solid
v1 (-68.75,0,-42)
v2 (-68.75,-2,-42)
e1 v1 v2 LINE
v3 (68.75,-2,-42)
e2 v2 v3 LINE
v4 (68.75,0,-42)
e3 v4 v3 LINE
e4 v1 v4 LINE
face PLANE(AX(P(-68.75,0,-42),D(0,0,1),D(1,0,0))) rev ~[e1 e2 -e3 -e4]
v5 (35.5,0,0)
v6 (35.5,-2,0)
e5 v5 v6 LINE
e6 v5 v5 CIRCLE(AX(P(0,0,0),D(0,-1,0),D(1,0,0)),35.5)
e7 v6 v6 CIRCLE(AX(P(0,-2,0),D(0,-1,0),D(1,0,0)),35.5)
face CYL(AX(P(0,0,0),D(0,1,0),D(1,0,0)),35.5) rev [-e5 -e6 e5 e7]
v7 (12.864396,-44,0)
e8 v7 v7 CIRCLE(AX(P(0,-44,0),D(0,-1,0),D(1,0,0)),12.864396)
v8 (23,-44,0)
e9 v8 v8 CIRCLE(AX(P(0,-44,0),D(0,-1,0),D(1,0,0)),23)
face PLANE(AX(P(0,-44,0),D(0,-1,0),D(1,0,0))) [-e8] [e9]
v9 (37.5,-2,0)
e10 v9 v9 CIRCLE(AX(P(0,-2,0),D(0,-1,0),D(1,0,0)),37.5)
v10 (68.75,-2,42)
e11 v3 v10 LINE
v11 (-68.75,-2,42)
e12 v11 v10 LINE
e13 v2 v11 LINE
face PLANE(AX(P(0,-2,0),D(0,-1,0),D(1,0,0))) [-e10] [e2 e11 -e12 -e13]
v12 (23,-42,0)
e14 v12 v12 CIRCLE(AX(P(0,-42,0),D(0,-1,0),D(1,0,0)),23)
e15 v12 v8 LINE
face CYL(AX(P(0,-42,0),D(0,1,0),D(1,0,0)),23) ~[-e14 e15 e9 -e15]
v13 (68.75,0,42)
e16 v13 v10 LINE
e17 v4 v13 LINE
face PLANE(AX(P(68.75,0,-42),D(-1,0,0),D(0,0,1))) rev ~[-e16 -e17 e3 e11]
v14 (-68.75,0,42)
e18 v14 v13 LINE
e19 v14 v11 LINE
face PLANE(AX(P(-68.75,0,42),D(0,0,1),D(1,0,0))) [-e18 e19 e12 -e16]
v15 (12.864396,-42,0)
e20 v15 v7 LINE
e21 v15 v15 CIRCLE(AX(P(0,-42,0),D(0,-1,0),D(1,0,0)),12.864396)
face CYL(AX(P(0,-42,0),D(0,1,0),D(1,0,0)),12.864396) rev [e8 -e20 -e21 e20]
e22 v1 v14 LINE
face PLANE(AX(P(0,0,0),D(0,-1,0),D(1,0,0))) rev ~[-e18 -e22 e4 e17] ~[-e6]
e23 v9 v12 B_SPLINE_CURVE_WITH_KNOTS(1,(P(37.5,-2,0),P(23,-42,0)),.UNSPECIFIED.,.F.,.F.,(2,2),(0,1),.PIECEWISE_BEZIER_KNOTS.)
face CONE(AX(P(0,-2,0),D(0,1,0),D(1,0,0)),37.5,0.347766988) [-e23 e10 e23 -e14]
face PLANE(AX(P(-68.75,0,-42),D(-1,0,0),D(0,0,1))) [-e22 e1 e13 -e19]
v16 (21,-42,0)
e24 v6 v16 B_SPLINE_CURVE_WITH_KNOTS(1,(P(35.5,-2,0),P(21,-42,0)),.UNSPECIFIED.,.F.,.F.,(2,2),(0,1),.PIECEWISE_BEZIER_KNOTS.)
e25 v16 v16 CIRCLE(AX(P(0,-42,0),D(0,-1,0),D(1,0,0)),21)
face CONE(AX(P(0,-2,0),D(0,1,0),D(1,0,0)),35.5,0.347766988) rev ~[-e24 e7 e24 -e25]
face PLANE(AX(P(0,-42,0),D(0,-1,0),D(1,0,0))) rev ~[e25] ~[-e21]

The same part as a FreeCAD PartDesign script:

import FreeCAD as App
import Part
import Sketcher
from FreeCAD import Vector
Q = App.Units.Quantity


def add_polygon(sketch, points):
    """Adds a closed chain of lines whose ends are joined by coincident constraints."""
    first, n = sketch.GeometryCount, len(points)
    for a, b in zip(points, points[1:] + points[:1]):
        sketch.addGeometry(Part.LineSegment(App.Vector(*a, 0), App.Vector(*b, 0)), False)
    for i in range(n):
        sketch.addConstraint(Sketcher.Constraint("Coincident", first + i, 2, first + (i + 1) % n, 1))

doc = App.newDocument("Part")
body = doc.addObject("PartDesign::Body", "Body")

# Sketch on XZ plane
sketch1 = body.newObject("Sketcher::SketchObject", "Sketch")
sketch1.AttachmentSupport = (doc.getObject("XZ_Plane"), [""])
sketch1.MapMode = "FlatFace"
add_polygon(sketch1, [(-68.75, 42), (-68.75, -42), (68.75, -42), (68.75, 42)])  # lines 0-3
sketch1.addGeometry(Part.Circle(Vector(0, 0, 0), Vector(0, 0, 1), 35.5), False)  # 4
sketch1.addConstraint([
    Sketcher.Constraint("Vertical", 0),
    Sketcher.Constraint("Horizontal", 1),
    Sketcher.Constraint("Vertical", 2),
    Sketcher.Constraint("Horizontal", 3),
    Sketcher.Constraint("Coincident", 4, 3, -1, 1),
    Sketcher.Constraint("Symmetric", 0, 2, 2, 2, -1, 1),
    Sketcher.Constraint("Diameter", 4, Q("71 mm")),
    Sketcher.Constraint("DistanceY", 0, 2, 0, 1, Q("84 mm")),
    Sketcher.Constraint("DistanceX", 1, 1, 1, 2, Q("137.5 mm")),
])
pad1 = body.newObject("PartDesign::Pad", "Pad")
pad1.Profile = sketch1
pad1.Length = 2

# Sketch on XZ plane
sketch2 = body.newObject("Sketcher::SketchObject", "Sketch001")
sketch2.AttachmentSupport = (doc.getObject("XZ_Plane"), [""])
sketch2.MapMode = "FlatFace"
sketch2.AttachmentOffset = App.Placement(Vector(0, 0, 2), App.Rotation())
sketch2.addGeometry(Part.Circle(Vector(0, 0, 0), Vector(0, 0, 1), 37.5), False)
sketch2.addConstraint([
    Sketcher.Constraint("Coincident", 0, 3, -1, 1),
    Sketcher.Constraint("Diameter", 0, Q("75 mm")),
])

# Sketch on XZ plane
sketch3 = body.newObject("Sketcher::SketchObject", "Sketch002")
sketch3.AttachmentSupport = (doc.getObject("XZ_Plane"), [""])
sketch3.MapMode = "FlatFace"
sketch3.AttachmentOffset = App.Placement(Vector(0, 0, 42), App.Rotation())
sketch3.addGeometry(Part.Circle(Vector(0, 0, 0), Vector(0, 0, 1), 23), False)
sketch3.addConstraint([
    Sketcher.Constraint("Coincident", 0, 3, -1, 1),
    Sketcher.Constraint("Diameter", 0, Q("46 mm")),
])

additiveloft = body.newObject("PartDesign::AdditiveLoft", "AdditiveLoft")
additiveloft.Profile = sketch2
additiveloft.Sections = [sketch3]

# Sketch on XZ plane
sketch4 = body.newObject("Sketcher::SketchObject", "Sketch003")
sketch4.AttachmentSupport = (doc.getObject("XZ_Plane"), [""])
sketch4.MapMode = "FlatFace"
sketch4.AttachmentOffset = App.Placement(Vector(0, 0, 2), App.Rotation())
sketch4.addGeometry(Part.Circle(Vector(0, 0, 0), Vector(0, 0, 1), 35.5), False)
sketch4.addConstraint([
    Sketcher.Constraint("Coincident", 0, 3, -1, 1),
    Sketcher.Constraint("Diameter", 0, Q("71 mm")),
])

# Sketch on XZ plane
sketch5 = body.newObject("Sketcher::SketchObject", "Sketch004")
sketch5.AttachmentSupport = (doc.getObject("XZ_Plane"), [""])
sketch5.MapMode = "FlatFace"
sketch5.AttachmentOffset = App.Placement(Vector(0, 0, 42), App.Rotation())
sketch5.addGeometry(Part.Circle(Vector(0, 0, 0), Vector(0, 0, 1), 21), False)
sketch5.addConstraint([
    Sketcher.Constraint("Coincident", 0, 3, -1, 1),
    Sketcher.Constraint("Diameter", 0, Q("42 mm")),
])

subtractiveloft = body.newObject("PartDesign::SubtractiveLoft", "SubtractiveLoft")
subtractiveloft.Profile = sketch4
subtractiveloft.Sections = [sketch5]

# Sketch on XZ plane
sketch6 = body.newObject("Sketcher::SketchObject", "Sketch005")
sketch6.AttachmentSupport = (doc.getObject("XZ_Plane"), [""])
sketch6.MapMode = "FlatFace"
sketch6.AttachmentOffset = App.Placement(Vector(0, 0, 42), App.Rotation())
sketch6.addGeometry([
    Part.Circle(Vector(0, 0, 0), Vector(0, 0, 1), 23),
    Part.Circle(Vector(0, 0, 0), Vector(0, 0, 1), 12.864396),
], False)
sketch6.addConstraint([
    Sketcher.Constraint("Coincident", 0, 3, -1, 1),
    Sketcher.Constraint("Coincident", 1, 3, -1, 1),
    Sketcher.Constraint("Diameter", 0, Q("46 mm")),
    Sketcher.Constraint("Diameter", 1, Q("25.728792 mm")),
])
pad2 = body.newObject("PartDesign::Pad", "Pad001")
pad2.Profile = sketch6
pad2.Length = 2

doc.recompute()
